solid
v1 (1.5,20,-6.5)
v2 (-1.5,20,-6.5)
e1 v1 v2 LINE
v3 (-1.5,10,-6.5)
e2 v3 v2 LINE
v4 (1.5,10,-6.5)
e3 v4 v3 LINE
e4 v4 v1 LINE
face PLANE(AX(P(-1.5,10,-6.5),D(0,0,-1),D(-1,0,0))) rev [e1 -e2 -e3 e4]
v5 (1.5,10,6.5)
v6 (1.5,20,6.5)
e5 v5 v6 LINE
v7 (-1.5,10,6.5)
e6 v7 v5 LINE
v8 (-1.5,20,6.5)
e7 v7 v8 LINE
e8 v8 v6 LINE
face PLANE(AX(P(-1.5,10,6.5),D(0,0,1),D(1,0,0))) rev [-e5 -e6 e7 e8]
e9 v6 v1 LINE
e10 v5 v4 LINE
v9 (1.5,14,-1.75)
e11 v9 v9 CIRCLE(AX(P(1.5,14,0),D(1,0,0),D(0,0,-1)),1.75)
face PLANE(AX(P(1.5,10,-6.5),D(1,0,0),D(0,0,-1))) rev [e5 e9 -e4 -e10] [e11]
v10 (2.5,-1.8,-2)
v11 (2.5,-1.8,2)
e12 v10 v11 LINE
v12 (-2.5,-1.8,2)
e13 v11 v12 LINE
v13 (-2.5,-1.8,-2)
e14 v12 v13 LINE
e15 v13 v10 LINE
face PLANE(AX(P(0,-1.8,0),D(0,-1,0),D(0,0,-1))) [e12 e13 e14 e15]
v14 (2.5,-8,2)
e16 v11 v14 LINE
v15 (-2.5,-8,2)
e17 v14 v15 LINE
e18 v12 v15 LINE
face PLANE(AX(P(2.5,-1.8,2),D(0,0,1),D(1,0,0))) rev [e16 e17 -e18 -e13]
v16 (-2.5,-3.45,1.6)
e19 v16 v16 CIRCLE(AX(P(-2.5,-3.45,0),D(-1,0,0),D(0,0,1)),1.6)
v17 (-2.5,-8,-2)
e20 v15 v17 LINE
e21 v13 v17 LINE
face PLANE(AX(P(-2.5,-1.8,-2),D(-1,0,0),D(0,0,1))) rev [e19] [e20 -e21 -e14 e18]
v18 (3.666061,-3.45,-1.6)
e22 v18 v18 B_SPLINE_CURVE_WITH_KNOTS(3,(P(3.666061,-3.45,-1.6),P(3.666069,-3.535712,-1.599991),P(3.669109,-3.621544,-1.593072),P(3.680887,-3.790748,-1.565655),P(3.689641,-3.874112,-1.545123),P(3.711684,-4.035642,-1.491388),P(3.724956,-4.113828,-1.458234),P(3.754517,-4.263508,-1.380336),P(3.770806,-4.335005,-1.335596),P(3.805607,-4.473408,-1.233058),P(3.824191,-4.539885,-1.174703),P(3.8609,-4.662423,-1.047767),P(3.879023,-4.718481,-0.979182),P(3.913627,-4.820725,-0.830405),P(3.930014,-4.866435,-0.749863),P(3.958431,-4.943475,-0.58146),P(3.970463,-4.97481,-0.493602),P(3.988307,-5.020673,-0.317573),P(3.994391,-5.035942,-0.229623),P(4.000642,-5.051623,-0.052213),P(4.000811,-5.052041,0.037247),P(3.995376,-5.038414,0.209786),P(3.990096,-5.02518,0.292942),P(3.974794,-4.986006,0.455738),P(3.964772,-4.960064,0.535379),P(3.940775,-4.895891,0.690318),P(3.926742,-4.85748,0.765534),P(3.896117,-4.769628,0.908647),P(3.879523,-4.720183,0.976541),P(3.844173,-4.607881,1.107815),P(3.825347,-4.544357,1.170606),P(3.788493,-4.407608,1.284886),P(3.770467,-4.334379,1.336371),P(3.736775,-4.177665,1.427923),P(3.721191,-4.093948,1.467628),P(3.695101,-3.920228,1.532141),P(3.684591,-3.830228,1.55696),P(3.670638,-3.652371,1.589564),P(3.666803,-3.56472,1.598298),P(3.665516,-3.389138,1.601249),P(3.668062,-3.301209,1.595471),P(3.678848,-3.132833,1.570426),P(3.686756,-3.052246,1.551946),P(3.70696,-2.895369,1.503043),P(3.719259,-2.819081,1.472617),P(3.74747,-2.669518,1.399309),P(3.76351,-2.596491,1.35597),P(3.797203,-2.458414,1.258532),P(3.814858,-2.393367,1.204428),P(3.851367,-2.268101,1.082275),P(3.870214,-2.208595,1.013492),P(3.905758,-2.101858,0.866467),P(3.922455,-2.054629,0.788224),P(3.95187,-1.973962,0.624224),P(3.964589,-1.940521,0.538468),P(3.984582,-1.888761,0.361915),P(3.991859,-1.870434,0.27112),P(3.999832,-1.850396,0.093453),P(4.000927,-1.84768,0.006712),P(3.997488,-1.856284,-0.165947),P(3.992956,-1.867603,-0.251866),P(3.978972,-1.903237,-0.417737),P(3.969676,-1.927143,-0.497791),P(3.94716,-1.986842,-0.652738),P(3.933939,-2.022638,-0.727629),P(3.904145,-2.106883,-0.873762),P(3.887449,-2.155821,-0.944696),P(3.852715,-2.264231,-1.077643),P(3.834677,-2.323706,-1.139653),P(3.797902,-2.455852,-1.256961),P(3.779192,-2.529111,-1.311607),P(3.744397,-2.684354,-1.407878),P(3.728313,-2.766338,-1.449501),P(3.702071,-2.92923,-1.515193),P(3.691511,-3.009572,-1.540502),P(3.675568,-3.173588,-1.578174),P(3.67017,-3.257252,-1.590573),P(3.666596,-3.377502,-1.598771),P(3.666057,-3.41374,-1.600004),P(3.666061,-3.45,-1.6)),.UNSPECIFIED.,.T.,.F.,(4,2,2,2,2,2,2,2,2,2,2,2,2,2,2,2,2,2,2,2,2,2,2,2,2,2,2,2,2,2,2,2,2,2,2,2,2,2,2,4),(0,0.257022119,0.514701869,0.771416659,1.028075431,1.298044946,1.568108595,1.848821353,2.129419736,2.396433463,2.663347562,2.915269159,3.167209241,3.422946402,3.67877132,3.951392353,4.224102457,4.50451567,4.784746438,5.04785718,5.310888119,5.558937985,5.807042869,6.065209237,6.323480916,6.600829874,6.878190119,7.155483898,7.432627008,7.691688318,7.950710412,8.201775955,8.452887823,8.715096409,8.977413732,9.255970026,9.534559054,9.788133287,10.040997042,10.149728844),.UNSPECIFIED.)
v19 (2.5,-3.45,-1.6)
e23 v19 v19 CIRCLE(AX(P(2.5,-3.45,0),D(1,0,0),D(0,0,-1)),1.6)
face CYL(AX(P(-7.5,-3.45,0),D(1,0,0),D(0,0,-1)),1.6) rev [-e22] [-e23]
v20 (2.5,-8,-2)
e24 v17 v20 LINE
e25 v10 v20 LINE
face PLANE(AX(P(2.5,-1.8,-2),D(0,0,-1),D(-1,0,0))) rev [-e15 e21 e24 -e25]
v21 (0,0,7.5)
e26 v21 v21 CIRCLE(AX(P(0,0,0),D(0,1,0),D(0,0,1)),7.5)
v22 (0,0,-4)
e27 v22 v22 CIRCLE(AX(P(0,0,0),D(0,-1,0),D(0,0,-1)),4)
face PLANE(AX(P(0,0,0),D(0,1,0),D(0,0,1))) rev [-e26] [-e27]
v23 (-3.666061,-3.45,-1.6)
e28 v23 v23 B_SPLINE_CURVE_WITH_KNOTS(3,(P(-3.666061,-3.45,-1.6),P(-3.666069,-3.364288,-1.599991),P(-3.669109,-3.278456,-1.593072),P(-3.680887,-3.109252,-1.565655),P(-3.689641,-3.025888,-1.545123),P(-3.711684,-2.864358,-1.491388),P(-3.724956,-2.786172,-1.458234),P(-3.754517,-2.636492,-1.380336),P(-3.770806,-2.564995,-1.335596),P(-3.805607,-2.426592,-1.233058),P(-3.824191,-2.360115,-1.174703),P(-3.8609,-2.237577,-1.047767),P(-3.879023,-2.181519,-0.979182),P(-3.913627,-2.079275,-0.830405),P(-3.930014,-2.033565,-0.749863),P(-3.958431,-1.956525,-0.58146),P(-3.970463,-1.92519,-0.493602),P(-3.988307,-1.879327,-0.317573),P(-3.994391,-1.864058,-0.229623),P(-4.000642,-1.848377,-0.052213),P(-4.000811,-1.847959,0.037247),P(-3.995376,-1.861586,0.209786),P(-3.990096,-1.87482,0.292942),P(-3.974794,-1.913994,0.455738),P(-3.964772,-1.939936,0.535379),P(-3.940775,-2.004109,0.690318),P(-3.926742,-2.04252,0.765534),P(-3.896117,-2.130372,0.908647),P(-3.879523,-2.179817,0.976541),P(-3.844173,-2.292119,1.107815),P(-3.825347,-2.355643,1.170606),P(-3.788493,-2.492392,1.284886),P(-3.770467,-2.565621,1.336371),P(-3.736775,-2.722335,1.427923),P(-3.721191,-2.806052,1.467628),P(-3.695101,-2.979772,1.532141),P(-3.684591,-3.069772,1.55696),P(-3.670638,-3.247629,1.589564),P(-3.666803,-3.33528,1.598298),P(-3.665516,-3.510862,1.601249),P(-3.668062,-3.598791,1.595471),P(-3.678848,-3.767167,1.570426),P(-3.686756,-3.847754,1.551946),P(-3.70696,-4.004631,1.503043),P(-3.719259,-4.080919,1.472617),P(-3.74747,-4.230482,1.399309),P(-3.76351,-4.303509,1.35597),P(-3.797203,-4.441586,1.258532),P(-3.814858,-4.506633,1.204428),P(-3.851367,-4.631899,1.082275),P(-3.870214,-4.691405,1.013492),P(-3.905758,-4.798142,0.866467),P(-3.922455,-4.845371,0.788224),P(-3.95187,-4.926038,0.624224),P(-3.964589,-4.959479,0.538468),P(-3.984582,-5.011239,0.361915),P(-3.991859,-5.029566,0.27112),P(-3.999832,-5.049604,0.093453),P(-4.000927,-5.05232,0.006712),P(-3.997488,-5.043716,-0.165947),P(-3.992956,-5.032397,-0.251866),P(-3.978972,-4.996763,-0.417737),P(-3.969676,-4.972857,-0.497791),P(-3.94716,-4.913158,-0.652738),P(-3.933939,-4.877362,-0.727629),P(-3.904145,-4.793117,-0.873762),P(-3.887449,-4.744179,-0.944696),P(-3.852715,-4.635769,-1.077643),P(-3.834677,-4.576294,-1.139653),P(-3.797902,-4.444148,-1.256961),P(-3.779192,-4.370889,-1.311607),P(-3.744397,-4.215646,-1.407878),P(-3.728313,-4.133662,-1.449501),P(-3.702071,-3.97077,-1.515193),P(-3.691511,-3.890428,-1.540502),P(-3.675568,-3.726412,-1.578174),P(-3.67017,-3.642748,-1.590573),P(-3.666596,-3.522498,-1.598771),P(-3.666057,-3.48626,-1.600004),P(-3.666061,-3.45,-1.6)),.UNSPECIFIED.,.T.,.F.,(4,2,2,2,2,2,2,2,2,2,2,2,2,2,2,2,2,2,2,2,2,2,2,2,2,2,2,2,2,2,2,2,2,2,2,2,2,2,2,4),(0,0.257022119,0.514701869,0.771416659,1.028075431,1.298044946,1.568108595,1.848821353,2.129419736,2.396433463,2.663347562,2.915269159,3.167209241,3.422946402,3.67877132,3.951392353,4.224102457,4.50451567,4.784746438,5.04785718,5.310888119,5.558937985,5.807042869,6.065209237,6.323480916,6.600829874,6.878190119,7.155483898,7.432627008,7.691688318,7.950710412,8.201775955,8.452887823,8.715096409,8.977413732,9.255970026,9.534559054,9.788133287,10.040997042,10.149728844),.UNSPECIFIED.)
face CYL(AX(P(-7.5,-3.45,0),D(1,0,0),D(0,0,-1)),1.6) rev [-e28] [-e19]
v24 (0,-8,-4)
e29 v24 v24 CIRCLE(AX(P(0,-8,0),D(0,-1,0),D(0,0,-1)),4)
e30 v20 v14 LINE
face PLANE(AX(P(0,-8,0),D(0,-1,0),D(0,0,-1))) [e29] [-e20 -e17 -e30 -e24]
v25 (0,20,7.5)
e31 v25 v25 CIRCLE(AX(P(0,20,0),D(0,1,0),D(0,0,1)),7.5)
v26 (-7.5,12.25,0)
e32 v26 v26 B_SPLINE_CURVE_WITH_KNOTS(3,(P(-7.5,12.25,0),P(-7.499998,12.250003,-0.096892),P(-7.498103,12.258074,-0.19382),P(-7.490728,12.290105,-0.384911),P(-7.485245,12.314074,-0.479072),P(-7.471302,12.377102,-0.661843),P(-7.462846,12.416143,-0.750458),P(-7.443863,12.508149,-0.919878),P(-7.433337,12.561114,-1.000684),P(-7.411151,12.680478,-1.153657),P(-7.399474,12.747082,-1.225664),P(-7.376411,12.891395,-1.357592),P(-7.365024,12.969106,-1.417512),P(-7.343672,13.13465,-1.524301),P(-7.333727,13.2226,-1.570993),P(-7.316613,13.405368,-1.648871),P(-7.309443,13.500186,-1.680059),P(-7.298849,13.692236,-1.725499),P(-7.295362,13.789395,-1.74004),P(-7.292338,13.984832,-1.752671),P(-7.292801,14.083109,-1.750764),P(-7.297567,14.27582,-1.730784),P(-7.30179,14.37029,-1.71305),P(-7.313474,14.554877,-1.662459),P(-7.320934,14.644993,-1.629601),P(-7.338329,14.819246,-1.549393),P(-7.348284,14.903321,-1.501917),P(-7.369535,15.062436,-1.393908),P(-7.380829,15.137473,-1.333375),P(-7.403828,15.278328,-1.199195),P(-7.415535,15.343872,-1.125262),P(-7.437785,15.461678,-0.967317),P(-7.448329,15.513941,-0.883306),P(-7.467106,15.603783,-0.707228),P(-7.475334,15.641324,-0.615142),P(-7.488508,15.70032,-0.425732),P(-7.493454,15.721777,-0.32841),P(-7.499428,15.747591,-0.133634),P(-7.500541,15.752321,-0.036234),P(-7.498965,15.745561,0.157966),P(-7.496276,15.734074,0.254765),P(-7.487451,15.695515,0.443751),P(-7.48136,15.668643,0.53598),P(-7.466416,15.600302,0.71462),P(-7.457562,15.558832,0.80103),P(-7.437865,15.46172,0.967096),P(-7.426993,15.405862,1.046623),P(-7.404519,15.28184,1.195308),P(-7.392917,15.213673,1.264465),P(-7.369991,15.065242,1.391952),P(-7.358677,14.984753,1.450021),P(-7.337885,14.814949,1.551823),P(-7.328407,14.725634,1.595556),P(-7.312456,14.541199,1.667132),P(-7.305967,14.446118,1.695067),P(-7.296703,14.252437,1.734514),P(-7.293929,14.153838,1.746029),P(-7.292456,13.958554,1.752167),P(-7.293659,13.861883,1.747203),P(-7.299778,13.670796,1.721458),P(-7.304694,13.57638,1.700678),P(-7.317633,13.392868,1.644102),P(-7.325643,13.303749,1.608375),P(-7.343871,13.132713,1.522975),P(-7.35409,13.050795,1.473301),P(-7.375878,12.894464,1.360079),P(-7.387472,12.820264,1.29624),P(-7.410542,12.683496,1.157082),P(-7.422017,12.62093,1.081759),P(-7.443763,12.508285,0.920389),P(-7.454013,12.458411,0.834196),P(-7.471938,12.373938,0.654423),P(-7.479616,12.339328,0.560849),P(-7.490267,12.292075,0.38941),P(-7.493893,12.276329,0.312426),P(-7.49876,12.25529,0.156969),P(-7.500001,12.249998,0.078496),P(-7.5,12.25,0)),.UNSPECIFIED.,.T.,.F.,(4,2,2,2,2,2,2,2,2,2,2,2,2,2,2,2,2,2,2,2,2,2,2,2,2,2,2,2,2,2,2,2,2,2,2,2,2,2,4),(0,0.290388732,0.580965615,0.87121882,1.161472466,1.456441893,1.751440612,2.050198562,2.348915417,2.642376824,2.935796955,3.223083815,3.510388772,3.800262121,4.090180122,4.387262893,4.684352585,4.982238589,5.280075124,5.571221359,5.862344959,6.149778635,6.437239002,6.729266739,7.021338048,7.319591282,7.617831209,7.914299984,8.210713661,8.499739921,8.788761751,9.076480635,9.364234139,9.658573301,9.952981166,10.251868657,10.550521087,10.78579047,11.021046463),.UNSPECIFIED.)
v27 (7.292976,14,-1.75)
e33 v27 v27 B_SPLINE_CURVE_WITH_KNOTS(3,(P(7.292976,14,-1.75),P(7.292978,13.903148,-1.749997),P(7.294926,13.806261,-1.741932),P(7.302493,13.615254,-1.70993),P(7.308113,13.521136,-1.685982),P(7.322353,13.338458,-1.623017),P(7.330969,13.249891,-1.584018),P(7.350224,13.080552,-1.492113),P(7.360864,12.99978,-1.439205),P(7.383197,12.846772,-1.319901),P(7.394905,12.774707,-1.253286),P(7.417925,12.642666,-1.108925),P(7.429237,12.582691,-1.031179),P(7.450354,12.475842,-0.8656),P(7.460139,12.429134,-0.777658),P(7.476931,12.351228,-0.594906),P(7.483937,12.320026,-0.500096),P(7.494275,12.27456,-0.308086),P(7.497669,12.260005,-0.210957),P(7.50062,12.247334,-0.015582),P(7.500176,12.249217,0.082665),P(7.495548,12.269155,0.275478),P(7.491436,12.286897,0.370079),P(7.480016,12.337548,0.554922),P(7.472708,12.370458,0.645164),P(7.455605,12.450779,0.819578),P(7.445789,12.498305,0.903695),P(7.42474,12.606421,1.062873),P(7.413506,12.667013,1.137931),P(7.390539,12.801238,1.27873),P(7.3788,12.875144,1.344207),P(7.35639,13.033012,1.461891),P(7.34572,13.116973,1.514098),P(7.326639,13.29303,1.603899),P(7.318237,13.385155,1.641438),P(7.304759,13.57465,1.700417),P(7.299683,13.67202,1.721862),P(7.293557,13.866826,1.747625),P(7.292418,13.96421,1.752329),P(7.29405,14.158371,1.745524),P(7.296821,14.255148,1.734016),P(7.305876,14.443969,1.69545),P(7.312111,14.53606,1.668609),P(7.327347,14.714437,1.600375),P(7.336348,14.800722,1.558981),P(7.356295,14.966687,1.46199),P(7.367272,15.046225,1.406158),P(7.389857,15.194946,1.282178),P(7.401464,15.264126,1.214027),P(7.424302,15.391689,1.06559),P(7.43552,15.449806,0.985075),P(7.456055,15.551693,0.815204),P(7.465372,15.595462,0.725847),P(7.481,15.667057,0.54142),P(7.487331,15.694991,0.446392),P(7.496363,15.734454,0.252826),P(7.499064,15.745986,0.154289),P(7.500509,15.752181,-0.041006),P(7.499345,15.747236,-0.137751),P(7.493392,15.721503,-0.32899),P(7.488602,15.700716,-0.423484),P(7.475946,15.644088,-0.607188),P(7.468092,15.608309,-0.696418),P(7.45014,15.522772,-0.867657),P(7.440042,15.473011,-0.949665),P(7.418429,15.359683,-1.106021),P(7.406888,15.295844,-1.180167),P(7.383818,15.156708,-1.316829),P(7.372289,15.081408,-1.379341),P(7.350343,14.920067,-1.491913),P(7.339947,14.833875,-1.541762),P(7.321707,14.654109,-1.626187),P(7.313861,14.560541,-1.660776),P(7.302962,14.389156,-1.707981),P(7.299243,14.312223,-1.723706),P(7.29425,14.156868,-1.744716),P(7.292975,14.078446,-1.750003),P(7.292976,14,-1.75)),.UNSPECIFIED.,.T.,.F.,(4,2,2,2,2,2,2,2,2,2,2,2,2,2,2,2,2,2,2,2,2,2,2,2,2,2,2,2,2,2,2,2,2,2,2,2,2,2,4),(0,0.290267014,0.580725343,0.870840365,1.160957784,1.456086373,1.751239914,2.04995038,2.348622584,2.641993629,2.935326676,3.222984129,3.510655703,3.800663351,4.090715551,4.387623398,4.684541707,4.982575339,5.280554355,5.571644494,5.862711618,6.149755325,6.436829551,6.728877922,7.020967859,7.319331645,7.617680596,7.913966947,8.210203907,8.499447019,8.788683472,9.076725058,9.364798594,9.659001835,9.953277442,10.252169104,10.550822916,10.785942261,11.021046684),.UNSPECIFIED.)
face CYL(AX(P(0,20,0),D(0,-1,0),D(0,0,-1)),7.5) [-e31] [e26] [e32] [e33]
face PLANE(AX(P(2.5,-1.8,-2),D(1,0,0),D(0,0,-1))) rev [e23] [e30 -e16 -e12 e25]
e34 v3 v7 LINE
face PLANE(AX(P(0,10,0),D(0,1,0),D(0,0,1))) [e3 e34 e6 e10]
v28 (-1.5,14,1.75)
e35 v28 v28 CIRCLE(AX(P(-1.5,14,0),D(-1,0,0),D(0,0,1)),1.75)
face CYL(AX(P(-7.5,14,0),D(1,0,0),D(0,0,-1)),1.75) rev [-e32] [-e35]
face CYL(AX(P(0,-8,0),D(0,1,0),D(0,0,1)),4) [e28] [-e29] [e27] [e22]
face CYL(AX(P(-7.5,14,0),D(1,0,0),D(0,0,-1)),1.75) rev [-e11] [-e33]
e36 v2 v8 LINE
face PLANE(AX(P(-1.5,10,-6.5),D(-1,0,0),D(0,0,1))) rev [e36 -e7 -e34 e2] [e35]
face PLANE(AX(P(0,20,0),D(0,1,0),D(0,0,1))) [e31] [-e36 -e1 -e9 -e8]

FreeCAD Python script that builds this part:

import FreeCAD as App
import Part
import Sketcher
Q = App.Units.Quantity

doc = App.newDocument("Part")
body = doc.addObject("PartDesign::Body", "Body")

sketch1 = body.newObject("Sketcher::SketchObject", "Sketch")
sketch1.AttachmentSupport = (doc.getObject("XZ_Plane"), [""])
sketch1.MapMode = "FlatFace"
sketch1.addGeometry(Part.Circle(App.Vector(0, 0, 0), App.Vector(0, 0, 1), 8), False)
sketch1.addConstraint(Sketcher.Constraint("Coincident", 0, 3, -1, 1))
sketch1.addConstraint(Sketcher.Constraint("Diameter", 0, Q("15 mm")))
pad1 = body.newObject("PartDesign::Pad", "Pad")
pad1.Profile = sketch1
pad1.Length = 20
pad1.Reversed = True

sketch2 = body.newObject("Sketcher::SketchObject", "Sketch001")
sketch2.AttachmentSupport = (doc.getObject("XZ_Plane"), [""])
sketch2.MapMode = "FlatFace"
sketch2.AttachmentOffset = App.Placement(App.Vector(0, 0, -20), App.Rotation())
sketch2.addGeometry(Part.LineSegment(App.Vector(-1.5, -6.5, 0), App.Vector(-1.5, 6.5, 0)), False)
sketch2.addGeometry(Part.LineSegment(App.Vector(-1.5, 6.5, 0), App.Vector(1.5, 6.5, 0)), False)
sketch2.addGeometry(Part.LineSegment(App.Vector(1.5, 6.5, 0), App.Vector(1.5, -6.5, 0)), False)
sketch2.addGeometry(Part.LineSegment(App.Vector(1.5, -6.5, 0), App.Vector(-1.5, -6.5, 0)), False)
sketch2.addConstraint(Sketcher.Constraint("Coincident", 0, 2, 1, 1))
sketch2.addConstraint(Sketcher.Constraint("Coincident", 1, 2, 2, 1))
sketch2.addConstraint(Sketcher.Constraint("Coincident", 2, 2, 3, 1))
sketch2.addConstraint(Sketcher.Constraint("Coincident", 3, 2, 0, 1))
sketch2.addConstraint(Sketcher.Constraint("Vertical", 0))
sketch2.addConstraint(Sketcher.Constraint("Horizontal", 1))
sketch2.addConstraint(Sketcher.Constraint("Vertical", 2))
sketch2.addConstraint(Sketcher.Constraint("Horizontal", 3))
sketch2.addConstraint(Sketcher.Constraint("Symmetric", 0, 2, 2, 2, -1, 1))
sketch2.addConstraint(Sketcher.Constraint("DistanceX", 1, 1, 1, 2, Q("3 mm")))
sketch2.addConstraint(Sketcher.Constraint("DistanceY", 0, 1, 0, 2, Q("13 mm")))
pocket1 = body.newObject("PartDesign::Pocket", "Pocket")
pocket1.Profile = sketch2
pocket1.Length = 10
pocket1.Reversed = True

sketch3 = body.newObject("Sketcher::SketchObject", "Sketch002")
sketch3.AttachmentSupport = (doc.getObject("YZ_Plane"), [""])
sketch3.MapMode = "FlatFace"
sketch3.AttachmentOffset = App.Placement(App.Vector(0, 0, 7.5), App.Rotation())
sketch3.addGeometry(Part.Circle(App.Vector(14, 0, 0), App.Vector(0, 0, 1), 1.8), False)
sketch3.addConstraint(Sketcher.Constraint("PointOnObject", 0, 3, -1))
sketch3.addConstraint(Sketcher.Constraint("Diameter", 0, Q("3.5 mm")))
sketch3.addConstraint(Sketcher.Constraint("DistanceX", -1, 1, 0, 3, Q("14 mm")))
pocket2 = body.newObject("PartDesign::Pocket", "Pocket001")
pocket2.Profile = sketch3
pocket2.Type = "ThroughAll"

sketch4 = body.newObject("Sketcher::SketchObject", "Sketch003")
sketch4.AttachmentSupport = (doc.getObject("XZ_Plane"), [""])
sketch4.MapMode = "FlatFace"
sketch4.addGeometry(Part.Circle(App.Vector(0, 0, 0), App.Vector(0, 0, 1), 4), False)
sketch4.addConstraint(Sketcher.Constraint("Coincident", 0, 3, -1, 1))
sketch4.addConstraint(Sketcher.Constraint("Diameter", 0, Q("8 mm")))
pad2 = body.newObject("PartDesign::Pad", "Pad001")
pad2.Profile = sketch4
pad2.Length = 8

sketch5 = body.newObject("Sketcher::SketchObject", "Sketch004")
sketch5.AttachmentSupport = (doc.getObject("XZ_Plane"), [""])
sketch5.MapMode = "FlatFace"
sketch5.AttachmentOffset = App.Placement(App.Vector(0, 0, 8), App.Rotation())
sketch5.addGeometry(Part.LineSegment(App.Vector(-2.5, 2, 0), App.Vector(-2.5, -2, 0)), False)
sketch5.addGeometry(Part.LineSegment(App.Vector(-2.5, -2, 0), App.Vector(2.5, -2, 0)), False)
sketch5.addGeometry(Part.LineSegment(App.Vector(2.5, -2, 0), App.Vector(2.5, 2, 0)), False)
sketch5.addGeometry(Part.LineSegment(App.Vector(2.5, 2, 0), App.Vector(-2.5, 2, 0)), False)
sketch5.addConstraint(Sketcher.Constraint("Coincident", 0, 2, 1, 1))
sketch5.addConstraint(Sketcher.Constraint("Coincident", 1, 2, 2, 1))
sketch5.addConstraint(Sketcher.Constraint("Coincident", 2, 2, 3, 1))
sketch5.addConstraint(Sketcher.Constraint("Coincident", 3, 2, 0, 1))
sketch5.addConstraint(Sketcher.Constraint("Vertical", 0))
sketch5.addConstraint(Sketcher.Constraint("Horizontal", 1))
sketch5.addConstraint(Sketcher.Constraint("Vertical", 2))
sketch5.addConstraint(Sketcher.Constraint("Horizontal", 3))
sketch5.addConstraint(Sketcher.Constraint("Symmetric", 0, 2, 2, 2, -1, 1))
sketch5.addConstraint(Sketcher.Constraint("DistanceX", 1, 1, 1, 2, Q("5 mm")))
sketch5.addConstraint(Sketcher.Constraint("DistanceY", 0, 2, 0, 1, Q("4 mm")))
pocket3 = body.newObject("PartDesign::Pocket", "Pocket002")
pocket3.Profile = sketch5
pocket3.Length = 6.2

sketch6 = body.newObject("Sketcher::SketchObject", "Sketch005")
sketch6.AttachmentSupport = (doc.getObject("YZ_Plane"), [""])
sketch6.MapMode = "FlatFace"
sketch6.AttachmentOffset = App.Placement(App.Vector(0, 0, 7.5), App.Rotation())
sketch6.addGeometry(Part.Circle(App.Vector(-3.5, 0, 0), App.Vector(0, 0, 1), 1.6), False)
sketch6.addConstraint(Sketcher.Constraint("PointOnObject", 0, 3, -1))
sketch6.addConstraint(Sketcher.Constraint("Diameter", 0, Q("3.2 mm")))
sketch6.addConstraint(Sketcher.Constraint("DistanceX", 0, 3, -1, 1, Q("3.45 mm")))
pocket4 = body.newObject("PartDesign::Pocket", "Pocket003")
pocket4.Profile = sketch6
pocket4.Type = "ThroughAll"

doc.recompute()
